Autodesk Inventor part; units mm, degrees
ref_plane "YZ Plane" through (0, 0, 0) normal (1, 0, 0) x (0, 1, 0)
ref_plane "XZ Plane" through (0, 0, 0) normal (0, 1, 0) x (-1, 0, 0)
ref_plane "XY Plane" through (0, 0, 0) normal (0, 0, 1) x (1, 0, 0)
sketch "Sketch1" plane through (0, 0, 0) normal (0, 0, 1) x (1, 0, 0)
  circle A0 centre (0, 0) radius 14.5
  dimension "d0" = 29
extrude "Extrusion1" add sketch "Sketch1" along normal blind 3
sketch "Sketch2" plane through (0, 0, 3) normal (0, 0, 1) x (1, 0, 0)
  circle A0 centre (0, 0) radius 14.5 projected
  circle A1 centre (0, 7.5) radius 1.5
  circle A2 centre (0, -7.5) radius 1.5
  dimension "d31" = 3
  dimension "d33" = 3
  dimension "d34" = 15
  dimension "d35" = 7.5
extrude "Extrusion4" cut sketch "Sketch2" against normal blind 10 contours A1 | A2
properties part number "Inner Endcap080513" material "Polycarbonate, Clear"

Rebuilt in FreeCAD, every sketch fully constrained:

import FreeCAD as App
import Part
import Sketcher
Q = App.Units.Quantity

doc = App.newDocument("Part")
body = doc.addObject("PartDesign::Body", "Body")

# Sketch on XY plane
sketch1 = body.newObject("Sketcher::SketchObject", "Sketch")
sketch1.AttachmentSupport = (doc.getObject("XY_Plane"), [""])
sketch1.MapMode = "FlatFace"
sketch1.addGeometry(Part.Circle(App.Vector(0, 0, 0), App.Vector(0, 0, 1), 14), False)
sketch1.addConstraint([
    Sketcher.Constraint("Coincident", 0, 3, -1, 1),
    Sketcher.Constraint("Diameter", 0, Q("29 mm")),
])
pad1 = body.newObject("PartDesign::Pad", "Pad")
pad1.Profile = sketch1
pad1.Length = 3

# Sketch on XY plane
sketch2 = body.newObject("Sketcher::SketchObject", "Sketch001")
sketch2.AttachmentSupport = (doc.getObject("XY_Plane"), [""])
sketch2.MapMode = "FlatFace"
sketch2.AttachmentOffset = App.Placement(App.Vector(0, 0, 3), App.Rotation())
sketch2.addGeometry([
    Part.Circle(App.Vector(0, 7.5, 0), App.Vector(0, 0, 1), 1.5),
    Part.Circle(App.Vector(0, -7.5, 0), App.Vector(0, 0, 1), 1.5),
], False)
sketch2.addConstraint([
    Sketcher.Constraint("Equal", 0, 1),
    Sketcher.Constraint("Symmetric", 0, 3, 1, 3, -1, 1),
    Sketcher.Constraint("PointOnObject", 0, 3, -2),
    Sketcher.Constraint("Diameter", 0, Q("3 mm")),
    Sketcher.Constraint("DistanceY", 1, 3, 0, 3, Q("15 mm")),
])
pocket1 = body.newObject("PartDesign::Pocket", "Pocket")
pocket1.Profile = sketch2
pocket1.Length = 10

doc.recompute()
